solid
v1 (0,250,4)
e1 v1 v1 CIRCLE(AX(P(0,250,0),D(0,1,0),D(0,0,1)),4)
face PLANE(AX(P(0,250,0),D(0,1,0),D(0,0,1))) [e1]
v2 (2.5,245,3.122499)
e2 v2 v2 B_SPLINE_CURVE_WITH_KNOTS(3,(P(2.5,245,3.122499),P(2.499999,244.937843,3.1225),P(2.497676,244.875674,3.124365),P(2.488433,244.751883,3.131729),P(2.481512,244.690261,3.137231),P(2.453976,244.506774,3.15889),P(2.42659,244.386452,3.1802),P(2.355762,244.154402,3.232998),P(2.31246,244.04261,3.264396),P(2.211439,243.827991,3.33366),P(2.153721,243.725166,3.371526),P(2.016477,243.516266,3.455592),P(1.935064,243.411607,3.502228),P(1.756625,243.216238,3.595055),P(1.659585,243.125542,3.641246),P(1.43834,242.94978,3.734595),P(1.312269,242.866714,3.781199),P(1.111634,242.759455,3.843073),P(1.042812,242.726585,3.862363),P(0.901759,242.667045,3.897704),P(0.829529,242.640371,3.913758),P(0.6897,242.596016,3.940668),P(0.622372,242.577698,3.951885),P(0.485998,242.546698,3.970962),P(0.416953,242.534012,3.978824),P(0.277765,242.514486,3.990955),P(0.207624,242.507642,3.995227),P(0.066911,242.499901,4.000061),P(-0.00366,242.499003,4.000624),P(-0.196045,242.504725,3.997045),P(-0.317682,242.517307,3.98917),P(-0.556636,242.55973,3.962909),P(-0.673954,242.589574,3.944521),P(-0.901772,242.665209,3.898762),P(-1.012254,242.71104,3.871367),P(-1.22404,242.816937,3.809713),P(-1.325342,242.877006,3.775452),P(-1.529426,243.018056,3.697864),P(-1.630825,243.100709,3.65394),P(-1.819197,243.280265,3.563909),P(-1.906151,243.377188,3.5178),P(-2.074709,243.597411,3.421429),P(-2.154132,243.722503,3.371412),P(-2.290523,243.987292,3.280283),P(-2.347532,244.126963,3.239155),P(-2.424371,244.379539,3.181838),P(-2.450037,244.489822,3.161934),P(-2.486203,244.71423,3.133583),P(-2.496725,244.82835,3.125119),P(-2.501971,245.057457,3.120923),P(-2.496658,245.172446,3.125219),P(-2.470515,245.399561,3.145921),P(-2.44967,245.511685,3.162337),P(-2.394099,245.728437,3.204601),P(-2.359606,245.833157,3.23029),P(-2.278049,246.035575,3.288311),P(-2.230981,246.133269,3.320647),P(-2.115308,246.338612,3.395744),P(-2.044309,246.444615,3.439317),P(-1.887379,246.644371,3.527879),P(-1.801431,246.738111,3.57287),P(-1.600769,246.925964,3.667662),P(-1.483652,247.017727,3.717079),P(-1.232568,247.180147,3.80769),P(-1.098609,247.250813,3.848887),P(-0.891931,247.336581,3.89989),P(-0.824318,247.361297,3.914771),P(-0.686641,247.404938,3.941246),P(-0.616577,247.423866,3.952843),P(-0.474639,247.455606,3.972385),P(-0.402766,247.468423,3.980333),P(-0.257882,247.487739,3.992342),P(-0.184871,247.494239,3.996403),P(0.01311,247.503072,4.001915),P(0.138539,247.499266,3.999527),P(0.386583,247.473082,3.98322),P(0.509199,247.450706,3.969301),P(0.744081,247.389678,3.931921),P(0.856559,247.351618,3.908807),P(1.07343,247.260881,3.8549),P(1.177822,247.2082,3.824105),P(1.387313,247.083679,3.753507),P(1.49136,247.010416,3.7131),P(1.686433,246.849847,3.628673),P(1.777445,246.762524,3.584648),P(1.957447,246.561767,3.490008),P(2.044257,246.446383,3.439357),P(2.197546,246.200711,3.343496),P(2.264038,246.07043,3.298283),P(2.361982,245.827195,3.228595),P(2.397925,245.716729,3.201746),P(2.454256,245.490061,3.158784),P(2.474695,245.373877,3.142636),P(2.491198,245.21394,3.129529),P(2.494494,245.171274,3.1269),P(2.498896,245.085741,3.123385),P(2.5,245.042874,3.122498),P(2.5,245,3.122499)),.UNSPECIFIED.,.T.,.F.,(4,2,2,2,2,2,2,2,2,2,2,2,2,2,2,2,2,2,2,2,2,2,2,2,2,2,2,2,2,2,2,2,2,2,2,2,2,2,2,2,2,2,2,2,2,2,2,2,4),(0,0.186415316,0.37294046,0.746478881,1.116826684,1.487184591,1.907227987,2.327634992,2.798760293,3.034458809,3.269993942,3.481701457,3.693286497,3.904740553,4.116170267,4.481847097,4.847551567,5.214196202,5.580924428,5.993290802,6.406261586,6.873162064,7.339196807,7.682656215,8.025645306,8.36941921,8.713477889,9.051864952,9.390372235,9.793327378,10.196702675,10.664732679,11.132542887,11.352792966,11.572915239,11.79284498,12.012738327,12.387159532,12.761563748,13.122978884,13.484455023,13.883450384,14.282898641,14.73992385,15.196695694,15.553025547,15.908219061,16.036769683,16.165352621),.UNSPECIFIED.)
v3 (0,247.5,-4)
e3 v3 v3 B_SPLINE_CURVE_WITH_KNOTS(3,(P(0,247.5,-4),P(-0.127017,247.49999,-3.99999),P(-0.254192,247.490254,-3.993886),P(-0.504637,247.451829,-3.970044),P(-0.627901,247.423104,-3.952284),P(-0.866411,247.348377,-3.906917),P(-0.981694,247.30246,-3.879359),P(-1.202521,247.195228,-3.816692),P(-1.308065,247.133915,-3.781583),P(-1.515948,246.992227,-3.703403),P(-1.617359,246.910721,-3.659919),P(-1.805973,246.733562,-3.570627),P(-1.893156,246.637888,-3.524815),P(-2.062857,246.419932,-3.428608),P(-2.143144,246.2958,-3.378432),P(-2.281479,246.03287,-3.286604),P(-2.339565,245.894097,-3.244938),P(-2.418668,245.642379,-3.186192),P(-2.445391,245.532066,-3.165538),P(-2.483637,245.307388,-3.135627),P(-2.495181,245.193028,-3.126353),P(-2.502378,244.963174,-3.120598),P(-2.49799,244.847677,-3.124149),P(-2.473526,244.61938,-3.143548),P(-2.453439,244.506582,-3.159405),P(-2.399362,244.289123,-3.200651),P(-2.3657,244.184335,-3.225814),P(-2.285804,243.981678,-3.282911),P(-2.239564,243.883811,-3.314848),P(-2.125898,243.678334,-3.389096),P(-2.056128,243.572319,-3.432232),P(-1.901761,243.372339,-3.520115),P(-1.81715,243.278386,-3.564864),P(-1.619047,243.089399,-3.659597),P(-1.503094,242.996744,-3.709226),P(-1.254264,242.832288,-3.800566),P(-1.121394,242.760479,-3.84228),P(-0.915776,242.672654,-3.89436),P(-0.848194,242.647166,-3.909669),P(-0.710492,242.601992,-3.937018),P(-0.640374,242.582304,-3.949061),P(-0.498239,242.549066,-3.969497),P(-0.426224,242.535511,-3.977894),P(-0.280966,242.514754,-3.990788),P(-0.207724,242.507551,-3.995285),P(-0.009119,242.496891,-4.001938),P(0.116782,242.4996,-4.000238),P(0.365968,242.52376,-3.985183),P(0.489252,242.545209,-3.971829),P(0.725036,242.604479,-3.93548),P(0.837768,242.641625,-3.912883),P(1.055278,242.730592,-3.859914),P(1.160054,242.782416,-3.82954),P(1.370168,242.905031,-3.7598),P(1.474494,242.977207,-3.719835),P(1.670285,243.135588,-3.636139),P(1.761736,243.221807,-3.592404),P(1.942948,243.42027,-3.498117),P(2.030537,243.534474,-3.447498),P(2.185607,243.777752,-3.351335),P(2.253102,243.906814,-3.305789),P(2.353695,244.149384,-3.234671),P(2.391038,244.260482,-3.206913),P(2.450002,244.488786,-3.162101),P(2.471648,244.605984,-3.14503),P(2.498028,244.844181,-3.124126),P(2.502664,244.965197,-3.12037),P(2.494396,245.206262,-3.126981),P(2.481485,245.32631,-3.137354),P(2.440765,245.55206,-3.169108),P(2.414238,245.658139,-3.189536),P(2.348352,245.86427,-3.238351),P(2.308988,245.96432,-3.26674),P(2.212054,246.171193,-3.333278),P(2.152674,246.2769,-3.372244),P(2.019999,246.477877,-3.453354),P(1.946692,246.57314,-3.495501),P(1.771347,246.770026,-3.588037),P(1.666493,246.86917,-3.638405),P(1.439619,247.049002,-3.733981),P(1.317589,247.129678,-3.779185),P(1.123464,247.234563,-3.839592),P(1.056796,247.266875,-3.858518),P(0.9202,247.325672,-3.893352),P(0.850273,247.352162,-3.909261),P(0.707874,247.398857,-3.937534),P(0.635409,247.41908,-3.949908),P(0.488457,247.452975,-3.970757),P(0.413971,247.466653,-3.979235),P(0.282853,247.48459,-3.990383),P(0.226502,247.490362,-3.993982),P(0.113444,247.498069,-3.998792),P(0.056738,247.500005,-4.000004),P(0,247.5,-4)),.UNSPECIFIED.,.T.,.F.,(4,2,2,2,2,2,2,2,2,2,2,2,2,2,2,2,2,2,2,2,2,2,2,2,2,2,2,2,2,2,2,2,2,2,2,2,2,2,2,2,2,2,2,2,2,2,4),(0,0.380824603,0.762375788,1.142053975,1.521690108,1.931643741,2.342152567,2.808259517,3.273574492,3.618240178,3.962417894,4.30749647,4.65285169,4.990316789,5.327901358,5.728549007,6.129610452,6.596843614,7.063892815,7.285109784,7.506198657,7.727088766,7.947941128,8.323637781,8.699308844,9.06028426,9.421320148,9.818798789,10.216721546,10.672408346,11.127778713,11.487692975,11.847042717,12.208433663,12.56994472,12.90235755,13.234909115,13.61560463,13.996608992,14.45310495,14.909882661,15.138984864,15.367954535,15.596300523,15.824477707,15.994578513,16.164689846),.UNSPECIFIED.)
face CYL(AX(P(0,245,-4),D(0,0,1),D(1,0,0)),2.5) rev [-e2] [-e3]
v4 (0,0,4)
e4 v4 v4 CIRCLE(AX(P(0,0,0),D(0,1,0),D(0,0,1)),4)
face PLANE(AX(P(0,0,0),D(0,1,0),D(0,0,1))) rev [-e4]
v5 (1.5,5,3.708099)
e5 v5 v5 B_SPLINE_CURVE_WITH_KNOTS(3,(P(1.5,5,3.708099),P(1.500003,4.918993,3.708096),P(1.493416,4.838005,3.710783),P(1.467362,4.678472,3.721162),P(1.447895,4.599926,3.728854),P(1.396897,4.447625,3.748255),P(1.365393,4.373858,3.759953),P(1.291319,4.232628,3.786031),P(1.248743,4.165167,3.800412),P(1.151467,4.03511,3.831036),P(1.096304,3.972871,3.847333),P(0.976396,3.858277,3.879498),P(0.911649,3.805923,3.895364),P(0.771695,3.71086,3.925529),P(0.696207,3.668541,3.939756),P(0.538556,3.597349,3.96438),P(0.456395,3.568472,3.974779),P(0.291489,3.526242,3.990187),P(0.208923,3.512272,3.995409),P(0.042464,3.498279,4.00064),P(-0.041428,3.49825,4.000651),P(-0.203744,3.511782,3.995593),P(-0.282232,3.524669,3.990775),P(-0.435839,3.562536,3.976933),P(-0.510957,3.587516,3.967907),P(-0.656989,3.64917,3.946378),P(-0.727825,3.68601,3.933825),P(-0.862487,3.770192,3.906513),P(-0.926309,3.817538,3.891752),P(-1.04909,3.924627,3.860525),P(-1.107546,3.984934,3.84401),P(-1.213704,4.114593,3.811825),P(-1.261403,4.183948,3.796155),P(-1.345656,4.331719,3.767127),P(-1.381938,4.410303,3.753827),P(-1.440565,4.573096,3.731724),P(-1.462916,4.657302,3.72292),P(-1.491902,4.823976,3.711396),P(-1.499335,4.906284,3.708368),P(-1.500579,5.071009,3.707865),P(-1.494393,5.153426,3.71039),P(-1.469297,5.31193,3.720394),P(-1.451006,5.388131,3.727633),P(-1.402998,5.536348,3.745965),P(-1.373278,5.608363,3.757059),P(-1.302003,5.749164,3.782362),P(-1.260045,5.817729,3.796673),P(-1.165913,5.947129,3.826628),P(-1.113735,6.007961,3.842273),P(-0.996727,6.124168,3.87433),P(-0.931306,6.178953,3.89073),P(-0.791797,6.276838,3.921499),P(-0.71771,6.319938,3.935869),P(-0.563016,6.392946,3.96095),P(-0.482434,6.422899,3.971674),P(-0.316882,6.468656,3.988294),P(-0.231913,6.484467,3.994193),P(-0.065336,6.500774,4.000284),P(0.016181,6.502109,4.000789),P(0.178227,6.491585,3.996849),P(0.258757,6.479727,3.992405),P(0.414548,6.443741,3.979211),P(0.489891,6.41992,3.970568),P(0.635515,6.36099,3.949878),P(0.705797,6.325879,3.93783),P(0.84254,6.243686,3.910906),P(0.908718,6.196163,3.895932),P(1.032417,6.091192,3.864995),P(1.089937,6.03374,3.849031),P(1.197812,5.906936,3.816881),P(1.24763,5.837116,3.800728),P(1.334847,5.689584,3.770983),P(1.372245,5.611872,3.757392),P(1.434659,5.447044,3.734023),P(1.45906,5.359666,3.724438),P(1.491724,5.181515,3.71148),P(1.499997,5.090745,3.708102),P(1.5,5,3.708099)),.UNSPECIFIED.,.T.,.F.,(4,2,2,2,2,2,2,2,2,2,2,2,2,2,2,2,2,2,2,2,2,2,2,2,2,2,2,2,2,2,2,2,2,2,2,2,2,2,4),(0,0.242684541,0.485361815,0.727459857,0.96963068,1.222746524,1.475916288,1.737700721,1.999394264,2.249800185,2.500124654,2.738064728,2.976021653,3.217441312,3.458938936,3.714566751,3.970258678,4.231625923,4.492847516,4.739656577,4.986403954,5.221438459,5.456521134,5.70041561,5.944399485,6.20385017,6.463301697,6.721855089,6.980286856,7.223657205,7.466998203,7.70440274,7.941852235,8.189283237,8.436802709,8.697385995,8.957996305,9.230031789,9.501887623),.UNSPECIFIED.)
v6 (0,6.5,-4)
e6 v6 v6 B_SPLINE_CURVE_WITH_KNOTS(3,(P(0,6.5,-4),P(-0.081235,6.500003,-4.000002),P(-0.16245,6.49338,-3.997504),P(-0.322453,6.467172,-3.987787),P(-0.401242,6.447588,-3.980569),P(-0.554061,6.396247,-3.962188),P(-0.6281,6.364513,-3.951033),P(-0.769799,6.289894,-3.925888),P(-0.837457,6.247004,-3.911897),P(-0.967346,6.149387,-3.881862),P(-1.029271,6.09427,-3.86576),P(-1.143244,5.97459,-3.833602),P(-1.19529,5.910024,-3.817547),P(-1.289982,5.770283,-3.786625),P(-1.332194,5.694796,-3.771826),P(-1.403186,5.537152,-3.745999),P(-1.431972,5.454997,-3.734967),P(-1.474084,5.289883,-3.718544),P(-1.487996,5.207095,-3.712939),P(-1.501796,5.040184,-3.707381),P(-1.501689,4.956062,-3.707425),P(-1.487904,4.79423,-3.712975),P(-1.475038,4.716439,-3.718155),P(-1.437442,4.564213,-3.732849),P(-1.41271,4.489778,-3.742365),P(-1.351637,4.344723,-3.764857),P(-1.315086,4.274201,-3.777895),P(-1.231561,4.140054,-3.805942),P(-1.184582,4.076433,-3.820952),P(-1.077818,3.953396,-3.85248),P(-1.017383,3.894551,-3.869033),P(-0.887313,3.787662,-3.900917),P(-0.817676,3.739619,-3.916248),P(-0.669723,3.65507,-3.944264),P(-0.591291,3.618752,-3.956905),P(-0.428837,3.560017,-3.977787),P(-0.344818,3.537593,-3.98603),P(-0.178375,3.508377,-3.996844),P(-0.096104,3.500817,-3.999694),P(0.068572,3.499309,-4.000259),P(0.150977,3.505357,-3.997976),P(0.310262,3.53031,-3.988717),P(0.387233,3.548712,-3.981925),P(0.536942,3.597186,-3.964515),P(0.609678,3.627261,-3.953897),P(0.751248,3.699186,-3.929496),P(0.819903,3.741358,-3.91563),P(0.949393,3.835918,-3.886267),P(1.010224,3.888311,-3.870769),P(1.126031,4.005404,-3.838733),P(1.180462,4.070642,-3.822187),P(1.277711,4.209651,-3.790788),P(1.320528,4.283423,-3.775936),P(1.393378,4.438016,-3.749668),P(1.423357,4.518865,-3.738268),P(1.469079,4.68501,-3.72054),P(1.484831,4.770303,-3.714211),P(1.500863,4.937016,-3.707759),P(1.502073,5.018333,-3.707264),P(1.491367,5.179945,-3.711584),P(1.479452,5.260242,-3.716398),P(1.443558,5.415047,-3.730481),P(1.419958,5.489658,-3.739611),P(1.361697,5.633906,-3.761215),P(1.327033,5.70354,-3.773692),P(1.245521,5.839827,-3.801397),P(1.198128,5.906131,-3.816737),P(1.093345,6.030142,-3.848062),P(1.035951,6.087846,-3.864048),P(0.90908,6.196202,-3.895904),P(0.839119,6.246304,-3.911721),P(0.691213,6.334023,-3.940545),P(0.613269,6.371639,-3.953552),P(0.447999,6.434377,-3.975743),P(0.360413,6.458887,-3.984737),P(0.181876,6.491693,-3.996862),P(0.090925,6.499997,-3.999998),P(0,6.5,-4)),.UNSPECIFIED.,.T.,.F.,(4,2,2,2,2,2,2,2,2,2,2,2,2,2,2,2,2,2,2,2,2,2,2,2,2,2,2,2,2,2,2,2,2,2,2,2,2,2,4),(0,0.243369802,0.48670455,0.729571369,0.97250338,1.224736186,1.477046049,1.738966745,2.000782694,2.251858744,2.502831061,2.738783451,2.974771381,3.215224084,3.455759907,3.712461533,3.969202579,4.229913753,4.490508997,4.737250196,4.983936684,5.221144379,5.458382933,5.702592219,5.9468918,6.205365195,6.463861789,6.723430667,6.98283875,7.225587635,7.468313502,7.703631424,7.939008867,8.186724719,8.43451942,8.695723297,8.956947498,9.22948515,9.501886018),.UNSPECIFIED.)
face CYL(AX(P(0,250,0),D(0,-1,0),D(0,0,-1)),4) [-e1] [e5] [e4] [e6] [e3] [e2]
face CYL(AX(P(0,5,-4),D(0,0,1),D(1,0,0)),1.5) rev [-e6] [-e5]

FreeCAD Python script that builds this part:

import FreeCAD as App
import Part
import Sketcher
from FreeCAD import Vector

doc = App.newDocument("Part")
body = doc.addObject("PartDesign::Body", "Body")

# Sketch on XZ plane
sketch1 = doc.addObject("Sketcher::SketchObject", "Sketch")
body.addObject(sketch1)
sketch1.AttachmentSupport = (doc.XZ_Plane, [""])
sketch1.MapMode = "FlatFace"
sketch1.addGeometry(Part.Circle(Vector(0, 0, 0), Vector(0, 0, 1), 4), False)
sketch1.addConstraint([
    Sketcher.Constraint("Coincident", 0, 3, -1, 1),
    Sketcher.Constraint("Diameter", 0, 8.0),
])
pad1 = doc.addObject("PartDesign::Pad", "Pad")
body.addObject(pad1)
pad1.Profile = sketch1
pad1.Length = 250
pad1.Reversed = True

# Sketch on XY plane
sketch2 = doc.addObject("Sketcher::SketchObject", "Sketch001")
body.addObject(sketch2)
sketch2.AttachmentSupport = (doc.XY_Plane, [""])
sketch2.MapMode = "FlatFace"
sketch2.addGeometry([
    Part.Circle(Vector(0, 5, 0), Vector(0, 0, 1), 1.5),
    Part.Circle(Vector(0, 245, 0), Vector(0, 0, 1), 2.5),
], False)
sketch2.addConstraint([
    Sketcher.Constraint("PointOnObject", 0, 3, -2),
    Sketcher.Constraint("PointOnObject", 1, 3, -2),
    Sketcher.Constraint("Diameter", 0, 3.0),
    Sketcher.Constraint("Diameter", 1, 5.0),
    Sketcher.Constraint("DistanceY", -1, 1, 0, 3, 5.0),
    Sketcher.Constraint("DistanceY", -1, 1, 1, 3, 245.0),
])
pocket1 = doc.addObject("PartDesign::Pocket", "Pocket")
body.addObject(pocket1)
pocket1.Profile = sketch2
pocket1.Type = "ThroughAll"
pocket1.Midplane = True

doc.recompute()
